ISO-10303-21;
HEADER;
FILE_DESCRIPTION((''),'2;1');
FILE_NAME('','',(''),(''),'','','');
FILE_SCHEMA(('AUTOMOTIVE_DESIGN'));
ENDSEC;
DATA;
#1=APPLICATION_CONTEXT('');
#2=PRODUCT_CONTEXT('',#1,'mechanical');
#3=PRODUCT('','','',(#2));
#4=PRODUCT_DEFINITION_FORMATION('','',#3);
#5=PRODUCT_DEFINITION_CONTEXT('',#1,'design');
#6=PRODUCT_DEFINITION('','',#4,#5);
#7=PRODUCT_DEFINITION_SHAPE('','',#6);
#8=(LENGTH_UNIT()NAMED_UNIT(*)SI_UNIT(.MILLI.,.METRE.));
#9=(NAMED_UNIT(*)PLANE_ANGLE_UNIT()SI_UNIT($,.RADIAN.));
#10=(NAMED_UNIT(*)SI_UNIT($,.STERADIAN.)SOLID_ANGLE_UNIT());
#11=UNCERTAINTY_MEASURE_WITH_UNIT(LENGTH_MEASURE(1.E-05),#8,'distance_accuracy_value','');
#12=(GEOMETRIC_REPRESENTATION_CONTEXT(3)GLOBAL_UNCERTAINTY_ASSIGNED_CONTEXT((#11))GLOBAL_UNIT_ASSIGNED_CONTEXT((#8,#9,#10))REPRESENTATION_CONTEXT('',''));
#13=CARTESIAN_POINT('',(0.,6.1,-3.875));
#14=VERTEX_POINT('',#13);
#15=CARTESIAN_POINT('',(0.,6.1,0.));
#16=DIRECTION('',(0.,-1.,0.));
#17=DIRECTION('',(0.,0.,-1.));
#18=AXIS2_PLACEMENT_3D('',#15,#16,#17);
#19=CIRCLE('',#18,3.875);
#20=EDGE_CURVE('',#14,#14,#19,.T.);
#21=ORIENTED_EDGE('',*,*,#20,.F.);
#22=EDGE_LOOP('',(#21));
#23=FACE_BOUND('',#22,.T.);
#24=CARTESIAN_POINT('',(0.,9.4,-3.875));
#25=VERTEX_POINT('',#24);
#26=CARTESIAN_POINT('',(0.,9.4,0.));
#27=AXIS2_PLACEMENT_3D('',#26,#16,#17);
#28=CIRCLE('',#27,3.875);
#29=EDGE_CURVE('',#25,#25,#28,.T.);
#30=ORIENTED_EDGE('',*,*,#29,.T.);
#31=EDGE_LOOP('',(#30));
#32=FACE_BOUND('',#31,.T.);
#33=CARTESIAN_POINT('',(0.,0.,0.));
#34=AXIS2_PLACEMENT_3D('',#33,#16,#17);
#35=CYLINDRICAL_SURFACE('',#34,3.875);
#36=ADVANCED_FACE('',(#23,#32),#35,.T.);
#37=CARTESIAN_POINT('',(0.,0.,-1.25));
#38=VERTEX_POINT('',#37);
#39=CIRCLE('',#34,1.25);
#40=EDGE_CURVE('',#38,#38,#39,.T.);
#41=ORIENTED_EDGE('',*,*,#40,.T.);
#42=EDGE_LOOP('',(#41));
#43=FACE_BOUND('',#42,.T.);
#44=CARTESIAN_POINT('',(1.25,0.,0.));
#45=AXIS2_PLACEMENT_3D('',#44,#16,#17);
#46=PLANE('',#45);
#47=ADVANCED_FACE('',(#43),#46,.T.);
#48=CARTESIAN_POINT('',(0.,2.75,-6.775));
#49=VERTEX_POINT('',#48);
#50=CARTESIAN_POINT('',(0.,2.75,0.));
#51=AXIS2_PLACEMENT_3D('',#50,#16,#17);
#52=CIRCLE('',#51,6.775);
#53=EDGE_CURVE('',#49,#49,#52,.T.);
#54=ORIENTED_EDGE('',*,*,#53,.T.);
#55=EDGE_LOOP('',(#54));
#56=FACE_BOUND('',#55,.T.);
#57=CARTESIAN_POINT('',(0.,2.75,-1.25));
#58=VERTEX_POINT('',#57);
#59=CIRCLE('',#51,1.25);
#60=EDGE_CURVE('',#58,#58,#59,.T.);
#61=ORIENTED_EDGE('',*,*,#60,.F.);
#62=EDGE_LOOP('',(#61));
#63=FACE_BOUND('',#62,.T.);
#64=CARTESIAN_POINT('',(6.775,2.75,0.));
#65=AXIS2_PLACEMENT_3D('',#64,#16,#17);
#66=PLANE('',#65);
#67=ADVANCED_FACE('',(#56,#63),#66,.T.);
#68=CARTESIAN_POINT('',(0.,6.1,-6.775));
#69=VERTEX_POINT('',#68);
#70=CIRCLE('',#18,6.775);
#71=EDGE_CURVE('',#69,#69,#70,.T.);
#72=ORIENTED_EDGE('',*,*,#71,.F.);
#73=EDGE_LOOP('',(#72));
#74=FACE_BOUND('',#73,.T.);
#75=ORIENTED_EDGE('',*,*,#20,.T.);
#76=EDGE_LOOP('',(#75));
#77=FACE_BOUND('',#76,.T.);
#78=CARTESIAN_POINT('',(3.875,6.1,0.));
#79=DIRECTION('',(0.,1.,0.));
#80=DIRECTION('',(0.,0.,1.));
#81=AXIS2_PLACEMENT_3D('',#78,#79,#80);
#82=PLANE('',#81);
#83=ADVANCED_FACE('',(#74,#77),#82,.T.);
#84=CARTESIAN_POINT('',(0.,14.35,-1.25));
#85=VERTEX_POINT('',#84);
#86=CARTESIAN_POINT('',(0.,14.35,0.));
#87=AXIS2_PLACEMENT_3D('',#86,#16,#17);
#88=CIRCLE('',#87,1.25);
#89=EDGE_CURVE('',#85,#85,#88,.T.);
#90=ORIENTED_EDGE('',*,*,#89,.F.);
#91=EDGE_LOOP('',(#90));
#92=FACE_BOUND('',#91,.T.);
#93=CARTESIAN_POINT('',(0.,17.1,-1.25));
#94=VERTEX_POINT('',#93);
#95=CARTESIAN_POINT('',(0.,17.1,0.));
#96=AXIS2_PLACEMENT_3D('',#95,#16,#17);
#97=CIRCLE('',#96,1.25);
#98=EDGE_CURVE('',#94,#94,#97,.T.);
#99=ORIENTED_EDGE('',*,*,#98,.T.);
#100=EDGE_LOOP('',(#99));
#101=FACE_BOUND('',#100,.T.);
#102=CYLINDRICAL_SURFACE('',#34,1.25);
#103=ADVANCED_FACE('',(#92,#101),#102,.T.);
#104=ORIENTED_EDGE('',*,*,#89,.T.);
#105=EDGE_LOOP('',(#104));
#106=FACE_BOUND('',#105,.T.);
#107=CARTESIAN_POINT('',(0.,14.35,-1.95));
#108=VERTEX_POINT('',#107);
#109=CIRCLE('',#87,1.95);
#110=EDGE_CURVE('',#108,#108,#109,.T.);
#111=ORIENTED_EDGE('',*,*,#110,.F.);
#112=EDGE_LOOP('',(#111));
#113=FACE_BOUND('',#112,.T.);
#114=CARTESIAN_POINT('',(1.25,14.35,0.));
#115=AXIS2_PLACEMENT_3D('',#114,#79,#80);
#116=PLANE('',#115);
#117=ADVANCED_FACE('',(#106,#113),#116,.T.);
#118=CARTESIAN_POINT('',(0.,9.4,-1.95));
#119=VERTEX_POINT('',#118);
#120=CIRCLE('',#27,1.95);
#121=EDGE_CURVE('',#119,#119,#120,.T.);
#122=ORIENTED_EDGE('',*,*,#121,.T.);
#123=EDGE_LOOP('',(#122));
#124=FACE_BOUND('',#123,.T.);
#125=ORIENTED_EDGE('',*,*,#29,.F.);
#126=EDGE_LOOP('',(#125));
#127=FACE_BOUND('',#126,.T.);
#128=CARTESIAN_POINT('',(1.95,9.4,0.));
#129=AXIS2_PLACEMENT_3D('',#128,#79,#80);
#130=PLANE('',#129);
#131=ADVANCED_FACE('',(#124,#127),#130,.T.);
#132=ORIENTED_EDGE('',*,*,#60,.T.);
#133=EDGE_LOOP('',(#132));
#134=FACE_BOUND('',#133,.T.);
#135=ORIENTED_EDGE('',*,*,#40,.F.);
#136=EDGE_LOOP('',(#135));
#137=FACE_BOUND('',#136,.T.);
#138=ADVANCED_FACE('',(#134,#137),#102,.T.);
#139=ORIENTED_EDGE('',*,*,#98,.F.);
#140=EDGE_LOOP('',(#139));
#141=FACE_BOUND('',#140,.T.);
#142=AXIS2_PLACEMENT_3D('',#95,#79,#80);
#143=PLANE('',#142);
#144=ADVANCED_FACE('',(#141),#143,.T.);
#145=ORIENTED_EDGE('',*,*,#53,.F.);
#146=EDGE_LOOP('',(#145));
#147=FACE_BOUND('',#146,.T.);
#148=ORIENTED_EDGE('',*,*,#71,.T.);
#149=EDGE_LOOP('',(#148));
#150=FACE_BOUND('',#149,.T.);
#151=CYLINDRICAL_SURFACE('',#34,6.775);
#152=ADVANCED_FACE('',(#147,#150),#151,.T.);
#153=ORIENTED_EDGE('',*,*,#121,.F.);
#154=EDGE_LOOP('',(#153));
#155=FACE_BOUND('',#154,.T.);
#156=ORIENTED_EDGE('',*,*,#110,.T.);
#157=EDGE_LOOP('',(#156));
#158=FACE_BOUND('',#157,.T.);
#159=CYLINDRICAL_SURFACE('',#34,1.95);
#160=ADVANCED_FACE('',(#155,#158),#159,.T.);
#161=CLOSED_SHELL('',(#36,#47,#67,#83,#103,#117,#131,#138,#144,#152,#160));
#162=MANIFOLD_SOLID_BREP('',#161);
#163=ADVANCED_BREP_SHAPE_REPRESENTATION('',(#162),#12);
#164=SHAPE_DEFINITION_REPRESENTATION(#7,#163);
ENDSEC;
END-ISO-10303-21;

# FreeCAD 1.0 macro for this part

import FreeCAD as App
import Part
import Sketcher
from FreeCAD import Vector
Q = App.Units.Quantity

doc = App.newDocument("Part")
params = doc.addObject("Spreadsheet::Sheet", "Params")
for row, (alias, value) in enumerate([
    ("sketch1_width", "2.9 mm"),
    ("sketch1_width2", "0.7 mm"),
    ("sketch1_height", "17.1 mm"),
    ("sketch1_height2", "3.3 mm"),
    ("sketch1_width3", "1.25 mm"),
    ("revolution_angle", "360 deg"),
], start=1):
    params.set(f"A{row}", alias)
    params.set(f"B{row}", "=" + value)
    params.setAlias(f"B{row}", alias)

body = doc.addObject("PartDesign::Body", "Body")

sketch1 = body.newObject("Sketcher::SketchObject", "Sketch")
sketch1.AttachmentSupport = (doc.getObject("XY_Plane"), [""])
sketch1.MapMode = "FlatFace"
sketch1.addGeometry([
    Part.LineSegment(Vector(0, 17.1, 0), Vector(0, 0, 0)),
    Part.LineSegment(Vector(0, 0, 0), Vector(1.2, 0, 0)),
    Part.LineSegment(Vector(1.2, 0, 0), Vector(1.2, 2.8, 0)),
    Part.LineSegment(Vector(1.2, 2.8, 0), Vector(6.8, 2.8, 0)),
    Part.LineSegment(Vector(6.8, 2.8, 0), Vector(6.8, 6.1, 0)),
    Part.LineSegment(Vector(6.8, 6.1, 0), Vector(3.9, 6.1, 0)),
    Part.LineSegment(Vector(3.9, 6.1, 0), Vector(3.9, 9.4, 0)),
    Part.LineSegment(Vector(3.9, 9.4, 0), Vector(1.9, 9.4, 0)),
    Part.LineSegment(Vector(1.9, 9.4, 0), Vector(1.9, 14.3, 0)),
    Part.LineSegment(Vector(1.9, 14.3, 0), Vector(1.2, 14.3, 0)),
    Part.LineSegment(Vector(1.2, 14.3, 0), Vector(1.2, 17.1, 0)),
    Part.LineSegment(Vector(1.2, 17.1, 0), Vector(0, 17.1, 0)),
], False)
sketch1.addConstraint([
    Sketcher.Constraint("Coincident", 0, 2, 1, 1),
    Sketcher.Constraint("Coincident", 1, 2, 2, 1),
    Sketcher.Constraint("Coincident", 2, 2, 3, 1),
    Sketcher.Constraint("Coincident", 3, 2, 4, 1),
    Sketcher.Constraint("Coincident", 4, 2, 5, 1),
    Sketcher.Constraint("Coincident", 5, 2, 6, 1),
    Sketcher.Constraint("Coincident", 6, 2, 7, 1),
    Sketcher.Constraint("Coincident", 7, 2, 8, 1),
    Sketcher.Constraint("Coincident", 8, 2, 9, 1),
    Sketcher.Constraint("Coincident", 9, 2, 10, 1),
    Sketcher.Constraint("Coincident", 10, 2, 11, 1),
    Sketcher.Constraint("Coincident", 11, 2, 0, 1),
    Sketcher.Constraint("Vertical", 0),
    Sketcher.Constraint("Horizontal", 1),
    Sketcher.Constraint("Vertical", 2),
    Sketcher.Constraint("Horizontal", 3),
    Sketcher.Constraint("Vertical", 4),
    Sketcher.Constraint("Horizontal", 5),
    Sketcher.Constraint("Vertical", 6),
    Sketcher.Constraint("Horizontal", 7),
    Sketcher.Constraint("Vertical", 8),
    Sketcher.Constraint("Horizontal", 9),
    Sketcher.Constraint("Vertical", 10),
    Sketcher.Constraint("Horizontal", 11),
    Sketcher.Constraint("Coincident", 0, 2, -1, 1),
    Sketcher.Constraint("Vertical", 2, 2, 9, 2),
    Sketcher.Constraint("Equal", 2, 10),
    Sketcher.Constraint("DistanceX", 5, 2, 5, 1, Q("2.9 mm")),
    Sketcher.Constraint("DistanceX", 9, 2, 9, 1, Q("0.7 mm")),
    Sketcher.Constraint("DistanceY", 0, 2, 0, 1, Q("17.1 mm")),
    Sketcher.Constraint("DistanceY", 6, 1, 6, 2, Q("3.3 mm")),
    Sketcher.Constraint("DistanceY", 5, 2, 10, 2, Q("11 mm")),
    Sketcher.Constraint("DistanceX", 1, 1, 1, 2, Q("1.25 mm")),
    Sketcher.Constraint("DistanceY", 2, 1, 2, 2, Q("2.75 mm")),
    Sketcher.Constraint("DistanceX", 3, 1, 3, 2, Q("5.525 mm")),
])
sketch1.setExpression("Constraints[27]", "Params.sketch1_width")
sketch1.setExpression("Constraints[28]", "Params.sketch1_width2")
sketch1.setExpression("Constraints[29]", "Params.sketch1_height")
sketch1.setExpression("Constraints[30]", "Params.sketch1_height2")
sketch1.setExpression("Constraints[32]", "Params.sketch1_width3")
revolution = body.newObject("PartDesign::Revolution", "Revolution")
revolution.Profile = sketch1
revolution.ReferenceAxis = (sketch1, ["V_Axis"])
revolution.setExpression("Angle", "Params.revolution_angle")

doc.recompute()
